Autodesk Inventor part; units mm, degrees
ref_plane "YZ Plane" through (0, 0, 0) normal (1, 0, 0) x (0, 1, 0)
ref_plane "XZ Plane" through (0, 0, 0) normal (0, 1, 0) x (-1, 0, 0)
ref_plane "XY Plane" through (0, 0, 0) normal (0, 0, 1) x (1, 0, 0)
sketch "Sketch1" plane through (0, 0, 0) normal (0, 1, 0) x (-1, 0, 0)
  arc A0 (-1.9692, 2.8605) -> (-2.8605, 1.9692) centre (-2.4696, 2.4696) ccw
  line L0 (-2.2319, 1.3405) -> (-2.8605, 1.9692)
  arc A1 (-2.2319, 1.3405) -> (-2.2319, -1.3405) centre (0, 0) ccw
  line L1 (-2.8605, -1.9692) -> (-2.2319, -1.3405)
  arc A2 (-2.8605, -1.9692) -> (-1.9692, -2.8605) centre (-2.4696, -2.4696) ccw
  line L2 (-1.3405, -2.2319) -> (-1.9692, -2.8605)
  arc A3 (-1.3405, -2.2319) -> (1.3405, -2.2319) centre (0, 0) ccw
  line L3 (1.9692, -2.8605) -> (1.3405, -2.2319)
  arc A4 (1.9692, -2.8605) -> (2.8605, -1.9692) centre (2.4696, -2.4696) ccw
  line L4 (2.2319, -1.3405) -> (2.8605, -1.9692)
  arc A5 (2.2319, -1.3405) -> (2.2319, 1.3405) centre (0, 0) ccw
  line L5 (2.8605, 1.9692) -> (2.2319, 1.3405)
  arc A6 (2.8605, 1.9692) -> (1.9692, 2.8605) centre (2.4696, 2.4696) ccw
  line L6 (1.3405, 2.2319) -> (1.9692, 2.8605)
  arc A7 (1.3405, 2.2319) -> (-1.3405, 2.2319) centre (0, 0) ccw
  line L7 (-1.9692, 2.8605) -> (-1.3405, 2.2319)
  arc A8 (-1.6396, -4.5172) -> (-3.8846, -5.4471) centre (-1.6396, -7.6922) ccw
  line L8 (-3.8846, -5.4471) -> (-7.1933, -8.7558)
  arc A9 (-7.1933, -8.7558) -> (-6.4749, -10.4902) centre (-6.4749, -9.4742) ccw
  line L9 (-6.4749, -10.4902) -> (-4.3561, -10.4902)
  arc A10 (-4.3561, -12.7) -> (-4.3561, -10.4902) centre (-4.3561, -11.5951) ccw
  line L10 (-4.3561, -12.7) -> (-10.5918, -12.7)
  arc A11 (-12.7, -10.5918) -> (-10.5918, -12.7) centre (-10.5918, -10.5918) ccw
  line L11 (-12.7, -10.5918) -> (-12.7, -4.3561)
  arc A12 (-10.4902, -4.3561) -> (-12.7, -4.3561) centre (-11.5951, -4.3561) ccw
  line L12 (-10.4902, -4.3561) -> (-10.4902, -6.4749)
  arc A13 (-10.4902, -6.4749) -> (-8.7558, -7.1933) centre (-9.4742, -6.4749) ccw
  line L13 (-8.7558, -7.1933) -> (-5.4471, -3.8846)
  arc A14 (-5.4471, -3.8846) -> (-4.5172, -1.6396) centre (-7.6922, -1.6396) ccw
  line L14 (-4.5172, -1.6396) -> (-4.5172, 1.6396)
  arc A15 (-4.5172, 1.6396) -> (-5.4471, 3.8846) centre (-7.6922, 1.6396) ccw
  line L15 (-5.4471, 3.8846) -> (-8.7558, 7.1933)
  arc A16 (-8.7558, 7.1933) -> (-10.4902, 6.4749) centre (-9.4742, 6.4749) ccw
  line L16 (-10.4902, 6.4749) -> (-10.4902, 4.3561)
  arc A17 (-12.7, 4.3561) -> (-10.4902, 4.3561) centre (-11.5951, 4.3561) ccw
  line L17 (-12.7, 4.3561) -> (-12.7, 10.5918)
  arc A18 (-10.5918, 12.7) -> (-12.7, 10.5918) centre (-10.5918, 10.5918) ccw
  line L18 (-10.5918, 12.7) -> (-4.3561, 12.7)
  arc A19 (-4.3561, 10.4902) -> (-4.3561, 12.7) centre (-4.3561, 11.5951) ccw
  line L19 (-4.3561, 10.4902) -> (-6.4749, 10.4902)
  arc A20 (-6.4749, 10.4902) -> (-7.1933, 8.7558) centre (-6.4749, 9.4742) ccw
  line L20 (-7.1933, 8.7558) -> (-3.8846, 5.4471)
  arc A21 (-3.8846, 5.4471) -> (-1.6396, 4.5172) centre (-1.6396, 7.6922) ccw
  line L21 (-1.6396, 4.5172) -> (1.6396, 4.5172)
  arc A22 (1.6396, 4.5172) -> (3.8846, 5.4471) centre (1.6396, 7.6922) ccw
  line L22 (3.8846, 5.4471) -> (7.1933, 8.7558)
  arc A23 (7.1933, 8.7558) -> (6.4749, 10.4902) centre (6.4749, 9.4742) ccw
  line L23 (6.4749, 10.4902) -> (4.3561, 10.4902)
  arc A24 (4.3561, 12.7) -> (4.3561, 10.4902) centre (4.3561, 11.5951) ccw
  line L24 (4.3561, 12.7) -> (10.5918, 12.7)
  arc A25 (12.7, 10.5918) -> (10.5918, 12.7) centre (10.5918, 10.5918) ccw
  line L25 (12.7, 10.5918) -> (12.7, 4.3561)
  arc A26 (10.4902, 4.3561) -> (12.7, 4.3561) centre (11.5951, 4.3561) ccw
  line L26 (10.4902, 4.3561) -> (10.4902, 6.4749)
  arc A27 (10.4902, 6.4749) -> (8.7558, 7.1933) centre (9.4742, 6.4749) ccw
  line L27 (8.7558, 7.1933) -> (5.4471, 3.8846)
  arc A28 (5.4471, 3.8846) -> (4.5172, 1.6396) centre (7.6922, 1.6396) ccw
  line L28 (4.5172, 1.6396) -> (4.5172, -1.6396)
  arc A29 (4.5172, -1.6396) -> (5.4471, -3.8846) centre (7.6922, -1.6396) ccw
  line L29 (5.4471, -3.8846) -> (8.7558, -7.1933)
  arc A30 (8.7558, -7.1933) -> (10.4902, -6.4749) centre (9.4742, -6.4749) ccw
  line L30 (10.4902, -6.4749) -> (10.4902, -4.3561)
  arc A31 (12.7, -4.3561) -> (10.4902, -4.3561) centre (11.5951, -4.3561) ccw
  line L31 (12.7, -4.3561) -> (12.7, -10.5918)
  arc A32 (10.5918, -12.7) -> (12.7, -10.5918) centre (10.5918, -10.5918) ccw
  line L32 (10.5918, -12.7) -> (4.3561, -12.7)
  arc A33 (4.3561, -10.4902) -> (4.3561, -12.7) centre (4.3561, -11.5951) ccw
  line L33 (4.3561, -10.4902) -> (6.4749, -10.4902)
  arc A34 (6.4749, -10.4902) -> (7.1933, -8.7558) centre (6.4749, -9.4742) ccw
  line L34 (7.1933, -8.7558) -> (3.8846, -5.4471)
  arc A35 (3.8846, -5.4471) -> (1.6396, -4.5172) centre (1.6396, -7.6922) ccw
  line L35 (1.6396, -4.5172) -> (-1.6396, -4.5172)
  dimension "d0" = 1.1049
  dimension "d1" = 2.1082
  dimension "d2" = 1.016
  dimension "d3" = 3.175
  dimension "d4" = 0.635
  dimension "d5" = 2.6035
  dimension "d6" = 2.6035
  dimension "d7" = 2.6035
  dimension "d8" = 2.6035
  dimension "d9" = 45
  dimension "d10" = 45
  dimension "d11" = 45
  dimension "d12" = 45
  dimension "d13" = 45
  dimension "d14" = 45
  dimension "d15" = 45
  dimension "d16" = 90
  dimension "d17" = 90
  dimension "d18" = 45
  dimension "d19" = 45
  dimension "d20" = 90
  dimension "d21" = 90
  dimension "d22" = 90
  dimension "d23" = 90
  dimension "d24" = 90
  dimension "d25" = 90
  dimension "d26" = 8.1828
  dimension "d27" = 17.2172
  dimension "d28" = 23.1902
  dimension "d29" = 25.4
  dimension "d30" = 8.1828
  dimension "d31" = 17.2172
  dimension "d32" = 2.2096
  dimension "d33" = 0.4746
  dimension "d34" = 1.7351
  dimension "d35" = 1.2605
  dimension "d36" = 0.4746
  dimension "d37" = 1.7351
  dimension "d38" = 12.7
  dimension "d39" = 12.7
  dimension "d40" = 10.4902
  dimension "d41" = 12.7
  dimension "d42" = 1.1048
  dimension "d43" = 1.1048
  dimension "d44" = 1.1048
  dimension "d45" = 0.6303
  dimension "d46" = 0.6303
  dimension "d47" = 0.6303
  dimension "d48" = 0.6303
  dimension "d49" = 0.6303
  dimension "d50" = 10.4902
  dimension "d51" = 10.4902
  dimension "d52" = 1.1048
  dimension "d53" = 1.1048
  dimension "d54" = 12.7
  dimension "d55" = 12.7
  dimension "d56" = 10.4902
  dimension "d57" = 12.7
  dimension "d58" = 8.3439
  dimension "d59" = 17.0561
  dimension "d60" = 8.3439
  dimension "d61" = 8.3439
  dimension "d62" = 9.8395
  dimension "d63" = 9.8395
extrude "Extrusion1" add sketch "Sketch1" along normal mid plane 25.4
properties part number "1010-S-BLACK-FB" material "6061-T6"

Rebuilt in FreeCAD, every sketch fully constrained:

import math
import FreeCAD as App
import Part
import Sketcher
from FreeCAD import Vector
Q = App.Units.Quantity

doc = App.newDocument("Part")
body = doc.addObject("PartDesign::Body", "Body")

# Sketch on XZ plane
sketch1 = body.newObject("Sketcher::SketchObject", "Sketch")
sketch1.AttachmentSupport = (doc.getObject("XZ_Plane"), [""])
sketch1.MapMode = "FlatFace"
sketch1.addGeometry([
    Part.ArcOfCircle(Part.Circle(Vector(1.6396, -7.6922, 0), Vector(0, 0, 1), 3.175), math.radians(45.001276), math.radians(90)),  # 0
    Part.LineSegment(Vector(1.6396, -4.5172, 0), Vector(-1.6396, -4.5172, 0)),  # 1
    Part.ArcOfCircle(Part.Circle(Vector(-1.6396, -7.6922, 0), Vector(0, 0, 1), 3.17498), math.radians(90), math.radians(134.998724)),  # 2
    Part.LineSegment(Vector(-3.8846, -5.4471, 0), Vector(-7.1933, -8.7558, 0)),  # 3
    Part.ArcOfCircle(Part.Circle(Vector(-6.4749, -9.4742, 0), Vector(0, 0, 1), 1.016), math.radians(135), math.radians(270)),  # 4
    Part.LineSegment(Vector(-6.4749, -10.4902, 0), Vector(-4.3561, -10.4902, 0)),  # 5
    Part.ArcOfCircle(Part.Circle(Vector(-4.3561, -11.5951, 0), Vector(0, 0, 1), 1.1049), math.radians(-90), math.radians(90)),  # 6
    Part.LineSegment(Vector(-4.3561, -12.7, 0), Vector(-10.5918, -12.7, 0)),  # 7
    Part.ArcOfCircle(Part.Circle(Vector(-10.5918, -10.5918, 0), Vector(0, 0, 1), 2.1082), math.radians(180), math.radians(270)),  # 8
    Part.LineSegment(Vector(-12.7, -10.5918, 0), Vector(-12.7, -4.3561, 0)),  # 9
    Part.ArcOfCircle(Part.Circle(Vector(-11.5951, -4.3561, 0), Vector(0, 0, 1), 1.1049), math.radians(0), math.radians(180)),  # 10
    Part.LineSegment(Vector(-10.4902, -4.3561, 0), Vector(-10.4902, -6.4749, 0)),  # 11
    Part.ArcOfCircle(Part.Circle(Vector(-9.4742, -6.4749, 0), Vector(0, 0, 1), 1.015971), math.radians(180), math.radians(315)),  # 12
    Part.LineSegment(Vector(-8.7558, -7.1933, 0), Vector(-5.4471, -3.8846, 0)),  # 13
    Part.ArcOfCircle(Part.Circle(Vector(-7.6922, -1.6396, 0), Vector(0, 0, 1), 3.175), math.radians(-44.998724), math.radians(0)),  # 14
    Part.LineSegment(Vector(-4.5172, -1.6396, 0), Vector(-4.5172, 1.6396, 0)),  # 15
    Part.ArcOfCircle(Part.Circle(Vector(-7.6922, 1.6396, 0), Vector(0, 0, 1), 3.17498), math.radians(0), math.radians(44.998724)),  # 16
    Part.LineSegment(Vector(-5.4471, 3.8846, 0), Vector(-8.7558, 7.1933, 0)),  # 17
    Part.ArcOfCircle(Part.Circle(Vector(-9.4742, 6.4749, 0), Vector(0, 0, 1), 1.016), math.radians(45), math.radians(180)),  # 18
    Part.LineSegment(Vector(-10.4902, 6.4749, 0), Vector(-10.4902, 4.3561, 0)),  # 19
    Part.ArcOfCircle(Part.Circle(Vector(-11.5951, 4.3561, 0), Vector(0, 0, 1), 1.1049), math.radians(180), math.radians(360)),  # 20
    Part.LineSegment(Vector(-12.7, 4.3561, 0), Vector(-12.7, 10.5918, 0)),  # 21
    Part.ArcOfCircle(Part.Circle(Vector(-10.5918, 10.5918, 0), Vector(0, 0, 1), 2.1082), math.radians(90), math.radians(180)),  # 22
    Part.LineSegment(Vector(-10.5918, 12.7, 0), Vector(-4.3561, 12.7, 0)),  # 23
    Part.ArcOfCircle(Part.Circle(Vector(-4.3561, 11.5951, 0), Vector(0, 0, 1), 1.1049), math.radians(-90), math.radians(90)),  # 24
    Part.LineSegment(Vector(-4.3561, 10.4902, 0), Vector(-6.4749, 10.4902, 0)),  # 25
    Part.ArcOfCircle(Part.Circle(Vector(-6.4749, 9.4742, 0), Vector(0, 0, 1), 1.015971), math.radians(90), math.radians(225)),  # 26
    Part.LineSegment(Vector(-7.1933, 8.7558, 0), Vector(-3.8846, 5.4471, 0)),  # 27
    Part.ArcOfCircle(Part.Circle(Vector(-1.6396, 7.6922, 0), Vector(0, 0, 1), 3.175), math.radians(-134.998724), math.radians(-90)),  # 28
    Part.LineSegment(Vector(-1.6396, 4.5172, 0), Vector(1.6396, 4.5172, 0)),  # 29
    Part.ArcOfCircle(Part.Circle(Vector(1.6396, 7.6922, 0), Vector(0, 0, 1), 3.17498), math.radians(-90), math.radians(-45.001276)),  # 30
    Part.LineSegment(Vector(3.8846, 5.4471, 0), Vector(7.1933, 8.7558, 0)),  # 31
    Part.ArcOfCircle(Part.Circle(Vector(6.4749, 9.4742, 0), Vector(0, 0, 1), 1.016), math.radians(-45), math.radians(90)),  # 32
    Part.LineSegment(Vector(6.4749, 10.4902, 0), Vector(4.3561, 10.4902, 0)),  # 33
    Part.ArcOfCircle(Part.Circle(Vector(4.3561, 11.5951, 0), Vector(0, 0, 1), 1.1049), math.radians(90), math.radians(270)),  # 34
    Part.LineSegment(Vector(4.3561, 12.7, 0), Vector(10.5918, 12.7, 0)),  # 35
    Part.ArcOfCircle(Part.Circle(Vector(10.5918, 10.5918, 0), Vector(0, 0, 1), 2.1082), math.radians(0), math.radians(90)),  # 36
    Part.LineSegment(Vector(12.7, 10.5918, 0), Vector(12.7, 4.3561, 0)),  # 37
    Part.ArcOfCircle(Part.Circle(Vector(11.5951, 4.3561, 0), Vector(0, 0, 1), 1.1049), math.radians(180), math.radians(360)),  # 38
    Part.LineSegment(Vector(10.4902, 4.3561, 0), Vector(10.4902, 6.4749, 0)),  # 39
    Part.ArcOfCircle(Part.Circle(Vector(9.4742, 6.4749, 0), Vector(0, 0, 1), 1.015971), math.radians(0), math.radians(135)),  # 40
    Part.LineSegment(Vector(8.7558, 7.1933, 0), Vector(5.4471, 3.8846, 0)),  # 41
    Part.ArcOfCircle(Part.Circle(Vector(7.6922, 1.6396, 0), Vector(0, 0, 1), 3.175), math.radians(135.001276), math.radians(180)),  # 42
    Part.LineSegment(Vector(4.5172, 1.6396, 0), Vector(4.5172, -1.6396, 0)),  # 43
    Part.ArcOfCircle(Part.Circle(Vector(7.6922, -1.6396, 0), Vector(0, 0, 1), 3.17498), math.radians(180), math.radians(224.998724)),  # 44
    Part.LineSegment(Vector(5.4471, -3.8846, 0), Vector(8.7558, -7.1933, 0)),  # 45
    Part.ArcOfCircle(Part.Circle(Vector(9.4742, -6.4749, 0), Vector(0, 0, 1), 1.016), math.radians(-135), math.radians(0)),  # 46
    Part.LineSegment(Vector(10.4902, -6.4749, 0), Vector(10.4902, -4.3561, 0)),  # 47
    Part.ArcOfCircle(Part.Circle(Vector(11.5951, -4.3561, 0), Vector(0, 0, 1), 1.1049), math.radians(0), math.radians(180)),  # 48
    Part.LineSegment(Vector(12.7, -4.3561, 0), Vector(12.7, -10.5918, 0)),  # 49
    Part.ArcOfCircle(Part.Circle(Vector(10.5918, -10.5918, 0), Vector(0, 0, 1), 2.1082), math.radians(-90), math.radians(0)),  # 50
    Part.LineSegment(Vector(10.5918, -12.7, 0), Vector(4.3561, -12.7, 0)),  # 51
    Part.ArcOfCircle(Part.Circle(Vector(4.3561, -11.5951, 0), Vector(0, 0, 1), 1.1049), math.radians(90), math.radians(270)),  # 52
    Part.LineSegment(Vector(4.3561, -10.4902, 0), Vector(6.4749, -10.4902, 0)),  # 53
    Part.ArcOfCircle(Part.Circle(Vector(6.4749, -9.4742, 0), Vector(0, 0, 1), 1.015971), math.radians(-90), math.radians(45)),  # 54
    Part.LineSegment(Vector(7.1933, -8.7558, 0), Vector(3.8846, -5.4471, 0)),  # 55
    Part.ArcOfCircle(Part.Circle(Vector(2.4696, 2.4696, 0), Vector(0, 0, 1), 0.634983), math.radians(-52.003934), math.radians(142.003934)),  # 56
    Part.LineSegment(Vector(1.9692, 2.8605, 0), Vector(1.3405, 2.2319, 0)),  # 57
    Part.ArcOfCircle(Part.Circle(Vector(0, 0, 0), Vector(0, 0, 1), 2.60352), math.radians(59.010579), math.radians(120.989421)),  # 58
    Part.LineSegment(Vector(-1.3405, 2.2319, 0), Vector(-1.9692, 2.8605, 0)),  # 59
    Part.ArcOfCircle(Part.Circle(Vector(-2.4696, 2.4696, 0), Vector(0, 0, 1), 0.634983), math.radians(37.996066), math.radians(232.003934)),  # 60
    Part.LineSegment(Vector(-2.8605, 1.9692, 0), Vector(-2.2319, 1.3405, 0)),  # 61
    Part.ArcOfCircle(Part.Circle(Vector(0, 0, 0), Vector(0, 0, 1), 2.60352), math.radians(149.010579), math.radians(210.989421)),  # 62
    Part.LineSegment(Vector(-2.2319, -1.3405, 0), Vector(-2.8605, -1.9692, 0)),  # 63
    Part.ArcOfCircle(Part.Circle(Vector(-2.4696, -2.4696, 0), Vector(0, 0, 1), 0.634983), math.radians(127.996066), math.radians(322.003934)),  # 64
    Part.LineSegment(Vector(-1.9692, -2.8605, 0), Vector(-1.3405, -2.2319, 0)),  # 65
    Part.ArcOfCircle(Part.Circle(Vector(0, 0, 0), Vector(0, 0, 1), 2.60352), math.radians(-120.989421), math.radians(-59.010579)),  # 66
    Part.LineSegment(Vector(1.3405, -2.2319, 0), Vector(1.9692, -2.8605, 0)),  # 67
    Part.ArcOfCircle(Part.Circle(Vector(2.4696, -2.4696, 0), Vector(0, 0, 1), 0.634983), math.radians(-142.003934), math.radians(52.003934)),  # 68
    Part.LineSegment(Vector(2.8605, -1.9692, 0), Vector(2.2319, -1.3405, 0)),  # 69
    Part.ArcOfCircle(Part.Circle(Vector(0, 0, 0), Vector(0, 0, 1), 2.60352), math.radians(-30.989421), math.radians(30.989421)),  # 70
    Part.LineSegment(Vector(2.2319, 1.3405, 0), Vector(2.8605, 1.9692, 0)),  # 71
], False)
sketch1.addConstraint([
    Sketcher.Constraint("Tangent", 0, 2, 1, 1),
    Sketcher.Constraint("Tangent", 1, 2, 2, 1),
    Sketcher.Constraint("Tangent", 2, 2, 3, 1),
    Sketcher.Constraint("Tangent", 3, 2, 4, 1),
    Sketcher.Constraint("Tangent", 4, 2, 5, 1),
    Sketcher.Constraint("Tangent", 5, 2, 6, 2),
    Sketcher.Constraint("Tangent", 6, 1, 7, 1),
    Sketcher.Constraint("Tangent", 7, 2, 8, 2),
    Sketcher.Constraint("Tangent", 8, 1, 9, 1),
    Sketcher.Constraint("Tangent", 9, 2, 10, 2),
    Sketcher.Constraint("Tangent", 10, 1, 11, 1),
    Sketcher.Constraint("Tangent", 11, 2, 12, 1),
    Sketcher.Constraint("Tangent", 12, 2, 13, 1),
    Sketcher.Constraint("Tangent", 13, 2, 14, 1),
    Sketcher.Constraint("Tangent", 14, 2, 15, 1),
    Sketcher.Constraint("Tangent", 15, 2, 16, 1),
    Sketcher.Constraint("Tangent", 16, 2, 17, 1),
    Sketcher.Constraint("Tangent", 17, 2, 18, 1),
    Sketcher.Constraint("Tangent", 18, 2, 19, 1),
    Sketcher.Constraint("Tangent", 19, 2, 20, 2),
    Sketcher.Constraint("Tangent", 20, 1, 21, 1),
    Sketcher.Constraint("Tangent", 21, 2, 22, 2),
    Sketcher.Constraint("Tangent", 22, 1, 23, 1),
    Sketcher.Constraint("Tangent", 23, 2, 24, 2),
    Sketcher.Constraint("Tangent", 24, 1, 25, 1),
    Sketcher.Constraint("Tangent", 25, 2, 26, 1),
    Sketcher.Constraint("Tangent", 26, 2, 27, 1),
    Sketcher.Constraint("Tangent", 27, 2, 28, 1),
    Sketcher.Constraint("Tangent", 28, 2, 29, 1),
    Sketcher.Constraint("Tangent", 29, 2, 30, 1),
    Sketcher.Constraint("Tangent", 30, 2, 31, 1),
    Sketcher.Constraint("Tangent", 31, 2, 32, 1),
    Sketcher.Constraint("Tangent", 32, 2, 33, 1),
    Sketcher.Constraint("Tangent", 33, 2, 34, 2),
    Sketcher.Constraint("Tangent", 34, 1, 35, 1),
    Sketcher.Constraint("Tangent", 35, 2, 36, 2),
    Sketcher.Constraint("Tangent", 36, 1, 37, 1),
    Sketcher.Constraint("Tangent", 37, 2, 38, 2),
    Sketcher.Constraint("Tangent", 38, 1, 39, 1),
    Sketcher.Constraint("Tangent", 39, 2, 40, 1),
    Sketcher.Constraint("Tangent", 40, 2, 41, 1),
    Sketcher.Constraint("Tangent", 41, 2, 42, 1),
    Sketcher.Constraint("Tangent", 42, 2, 43, 1),
    Sketcher.Constraint("Tangent", 43, 2, 44, 1),
    Sketcher.Constraint("Tangent", 44, 2, 45, 1),
    Sketcher.Constraint("Tangent", 45, 2, 46, 1),
    Sketcher.Constraint("Tangent", 46, 2, 47, 1),
    Sketcher.Constraint("Tangent", 47, 2, 48, 2),
    Sketcher.Constraint("Tangent", 48, 1, 49, 1),
    Sketcher.Constraint("Tangent", 49, 2, 50, 2),
    Sketcher.Constraint("Tangent", 50, 1, 51, 1),
    Sketcher.Constraint("Tangent", 51, 2, 52, 2),
    Sketcher.Constraint("Tangent", 52, 1, 53, 1),
    Sketcher.Constraint("Tangent", 53, 2, 54, 1),
    Sketcher.Constraint("Tangent", 54, 2, 55, 1),
    Sketcher.Constraint("Tangent", 55, 2, 0, 1),
    Sketcher.Constraint("Coincident", 56, 2, 57, 1),
    Sketcher.Constraint("Coincident", 57, 2, 58, 1),
    Sketcher.Constraint("Coincident", 58, 2, 59, 1),
    Sketcher.Constraint("Coincident", 59, 2, 60, 1),
    Sketcher.Constraint("Coincident", 60, 2, 61, 1),
    Sketcher.Constraint("Coincident", 61, 2, 62, 1),
    Sketcher.Constraint("Coincident", 62, 2, 63, 1),
    Sketcher.Constraint("Coincident", 63, 2, 64, 1),
    Sketcher.Constraint("Coincident", 64, 2, 65, 1),
    Sketcher.Constraint("Coincident", 65, 2, 66, 1),
    Sketcher.Constraint("Coincident", 66, 2, 67, 1),
    Sketcher.Constraint("Coincident", 67, 2, 68, 1),
    Sketcher.Constraint("Coincident", 68, 2, 69, 1),
    Sketcher.Constraint("Coincident", 69, 2, 70, 1),
    Sketcher.Constraint("Coincident", 70, 2, 71, 1),
    Sketcher.Constraint("Coincident", 71, 2, 56, 1),
    Sketcher.Constraint("Horizontal", 1),
    Sketcher.Constraint("Horizontal", 5),
    Sketcher.Constraint("Horizontal", 7),
    Sketcher.Constraint("Vertical", 9),
    Sketcher.Constraint("Vertical", 11),
    Sketcher.Constraint("Vertical", 15),
    Sketcher.Constraint("Vertical", 19),
    Sketcher.Constraint("Vertical", 21),
    Sketcher.Constraint("Horizontal", 23),
    Sketcher.Constraint("Horizontal", 25),
    Sketcher.Constraint("Horizontal", 29),
    Sketcher.Constraint("Horizontal", 33),
    Sketcher.Constraint("Horizontal", 35),
    Sketcher.Constraint("Vertical", 37),
    Sketcher.Constraint("Vertical", 39),
    Sketcher.Constraint("Vertical", 43),
    Sketcher.Constraint("Vertical", 47),
    Sketcher.Constraint("Vertical", 49),
    Sketcher.Constraint("Horizontal", 51),
    Sketcher.Constraint("Horizontal", 53),
    Sketcher.Constraint("Coincident", 58, 3, -1, 1),
    Sketcher.Constraint("Coincident", 62, 3, -1, 1),
    Sketcher.Constraint("Coincident", 66, 3, -1, 1),
    Sketcher.Constraint("Coincident", 70, 3, -1, 1),
    Sketcher.Constraint("Equal", 0, 2),
    Sketcher.Constraint("Equal", 6, 10),
    Sketcher.Constraint("Equal", 4, 12),
    Sketcher.Constraint("Equal", 2, 14),
    Sketcher.Constraint("Equal", 14, 16),
    Sketcher.Constraint("Equal", 12, 18),
    Sketcher.Constraint("Equal", 10, 20),
    Sketcher.Constraint("Equal", 8, 22),
    Sketcher.Constraint("Equal", 20, 24),
    Sketcher.Constraint("Equal", 18, 26),
    Sketcher.Constraint("Equal", 16, 28),
    Sketcher.Constraint("Equal", 28, 30),
    Sketcher.Constraint("Equal", 26, 32),
    Sketcher.Constraint("Equal", 24, 34),
    Sketcher.Constraint("Equal", 22, 36),
    Sketcher.Constraint("Equal", 34, 38),
    Sketcher.Constraint("Equal", 32, 40),
    Sketcher.Constraint("Equal", 30, 42),
    Sketcher.Constraint("Equal", 42, 44),
    Sketcher.Constraint("Equal", 40, 46),
    Sketcher.Constraint("Equal", 38, 48),
    Sketcher.Constraint("Equal", 36, 50),
    Sketcher.Constraint("Equal", 48, 52),
    Sketcher.Constraint("Equal", 46, 54),
    Sketcher.Constraint("Equal", 56, 60),
    Sketcher.Constraint("Equal", 58, 62),
    Sketcher.Constraint("Equal", 60, 64),
    Sketcher.Constraint("Equal", 62, 66),
    Sketcher.Constraint("Equal", 64, 68),
    Sketcher.Constraint("Equal", 66, 70),
    Sketcher.Constraint("Symmetric", 0, 3, 28, 3, -1, 1),
    Sketcher.Constraint("Symmetric", 4, 3, 32, 3, -1, 1),
    Sketcher.Constraint("Symmetric", 10, 3, 38, 3, -1, 1),
    Sketcher.Constraint("Symmetric", 14, 3, 42, 3, -1, 1),
    Sketcher.Constraint("Symmetric", 18, 3, 46, 3, -1, 1),
    Sketcher.Constraint("Symmetric", 24, 3, 52, 3, -1, 1),
    Sketcher.Constraint("Symmetric", 56, 3, 64, 3, -1, 1),
    Sketcher.Constraint("Symmetric", 60, 3, 68, 3, -1, 1),
    Sketcher.Constraint("Symmetric", 26, 3, 32, 3, -2),
    Sketcher.Constraint("Symmetric", 20, 3, 38, 3, -2),
    Sketcher.Constraint("Symmetric", 56, 3, 60, 3, -2),
    Sketcher.Constraint("Symmetric", 17, 2, 40, 2, -2),
    Sketcher.Constraint("Symmetric", 13, 2, 44, 2, -2),
    Sketcher.Constraint("Symmetric", 3, 2, 54, 2, -2),
    Sketcher.Constraint("Parallel", 3, 13),
    Sketcher.Constraint("Perpendicular", 13, 17),
    Sketcher.Constraint("Perpendicular", 27, 31),
    Sketcher.Constraint("Perpendicular", 55, 57),
    Sketcher.Constraint("Perpendicular", 57, 59),
    Sketcher.Constraint("Parallel", 59, 61),
    Sketcher.Constraint("Perpendicular", 61, 63),
    Sketcher.Constraint("Parallel", 63, 65),
    Sketcher.Constraint("Perpendicular", 65, 67),
    Sketcher.Constraint("Parallel", 67, 69),
    Sketcher.Constraint("Perpendicular", 69, 71),
    Sketcher.Constraint("Horizontal", 10, 3, 48, 3),
    Sketcher.Constraint("Horizontal", 57, 2, 58, 2),
    Sketcher.Constraint("Horizontal", 65, 2, 66, 2),
    Sketcher.Constraint("Horizontal", 63, 2, 68, 2),
    Sketcher.Constraint("Horizontal", 61, 2, 70, 2),
    Sketcher.Constraint("Vertical", 6, 3, 24, 3),
    Sketcher.Constraint("Vertical", 34, 3, 52, 3),
    Sketcher.Constraint("Vertical", 61, 2, 62, 2),
    Sketcher.Constraint("Vertical", 59, 2, 64, 2),
    Sketcher.Constraint("Equal", 51, 9),
    Sketcher.Constraint("Equal", 53, 11),
    Sketcher.Constraint("Equal", 29, 15),
    Sketcher.Constraint("Equal", 3, 13),
    Sketcher.Constraint("Equal", 59, 61),
    Sketcher.Constraint("Radius", 4, Q("0.04 in")),
    Sketcher.Constraint("Radius", 0, Q("0.125 in")),
    Sketcher.Constraint("Radius", 8, Q("0.083 in")),
    Sketcher.Constraint("Radius", 56, Q("0.025 in")),
    Sketcher.Constraint("DistanceY", 6, 1, -1, 1, Q("0.5 in")),
    Sketcher.Constraint("Radius", 6, Q("0.0435 in")),
    Sketcher.Constraint("Radius", 58, Q("0.1025 in")),
    Sketcher.Constraint("Distance", 57, Q("0.035 in")),
    Sketcher.Constraint("DistanceX", 1, 2, 1, 1, Q("0.1291 in")),
    Sketcher.Constraint("DistanceX", 7, 2, 7, 1, Q("0.2455 in")),
    Sketcher.Constraint("DistanceX", 5, 1, 5, 2, Q("2.1188 mm")),
    Sketcher.Constraint("DistanceX", -1, 1, 56, 3, Q("2.4696 mm")),
    Sketcher.Constraint("DistanceY", -1, 1, 56, 3, Q("2.4696 mm")),
])
pad1 = body.newObject("PartDesign::Pad", "Pad")
pad1.Profile = sketch1
pad1.Length = Q("1 in")
pad1.Midplane = True

doc.recompute()
